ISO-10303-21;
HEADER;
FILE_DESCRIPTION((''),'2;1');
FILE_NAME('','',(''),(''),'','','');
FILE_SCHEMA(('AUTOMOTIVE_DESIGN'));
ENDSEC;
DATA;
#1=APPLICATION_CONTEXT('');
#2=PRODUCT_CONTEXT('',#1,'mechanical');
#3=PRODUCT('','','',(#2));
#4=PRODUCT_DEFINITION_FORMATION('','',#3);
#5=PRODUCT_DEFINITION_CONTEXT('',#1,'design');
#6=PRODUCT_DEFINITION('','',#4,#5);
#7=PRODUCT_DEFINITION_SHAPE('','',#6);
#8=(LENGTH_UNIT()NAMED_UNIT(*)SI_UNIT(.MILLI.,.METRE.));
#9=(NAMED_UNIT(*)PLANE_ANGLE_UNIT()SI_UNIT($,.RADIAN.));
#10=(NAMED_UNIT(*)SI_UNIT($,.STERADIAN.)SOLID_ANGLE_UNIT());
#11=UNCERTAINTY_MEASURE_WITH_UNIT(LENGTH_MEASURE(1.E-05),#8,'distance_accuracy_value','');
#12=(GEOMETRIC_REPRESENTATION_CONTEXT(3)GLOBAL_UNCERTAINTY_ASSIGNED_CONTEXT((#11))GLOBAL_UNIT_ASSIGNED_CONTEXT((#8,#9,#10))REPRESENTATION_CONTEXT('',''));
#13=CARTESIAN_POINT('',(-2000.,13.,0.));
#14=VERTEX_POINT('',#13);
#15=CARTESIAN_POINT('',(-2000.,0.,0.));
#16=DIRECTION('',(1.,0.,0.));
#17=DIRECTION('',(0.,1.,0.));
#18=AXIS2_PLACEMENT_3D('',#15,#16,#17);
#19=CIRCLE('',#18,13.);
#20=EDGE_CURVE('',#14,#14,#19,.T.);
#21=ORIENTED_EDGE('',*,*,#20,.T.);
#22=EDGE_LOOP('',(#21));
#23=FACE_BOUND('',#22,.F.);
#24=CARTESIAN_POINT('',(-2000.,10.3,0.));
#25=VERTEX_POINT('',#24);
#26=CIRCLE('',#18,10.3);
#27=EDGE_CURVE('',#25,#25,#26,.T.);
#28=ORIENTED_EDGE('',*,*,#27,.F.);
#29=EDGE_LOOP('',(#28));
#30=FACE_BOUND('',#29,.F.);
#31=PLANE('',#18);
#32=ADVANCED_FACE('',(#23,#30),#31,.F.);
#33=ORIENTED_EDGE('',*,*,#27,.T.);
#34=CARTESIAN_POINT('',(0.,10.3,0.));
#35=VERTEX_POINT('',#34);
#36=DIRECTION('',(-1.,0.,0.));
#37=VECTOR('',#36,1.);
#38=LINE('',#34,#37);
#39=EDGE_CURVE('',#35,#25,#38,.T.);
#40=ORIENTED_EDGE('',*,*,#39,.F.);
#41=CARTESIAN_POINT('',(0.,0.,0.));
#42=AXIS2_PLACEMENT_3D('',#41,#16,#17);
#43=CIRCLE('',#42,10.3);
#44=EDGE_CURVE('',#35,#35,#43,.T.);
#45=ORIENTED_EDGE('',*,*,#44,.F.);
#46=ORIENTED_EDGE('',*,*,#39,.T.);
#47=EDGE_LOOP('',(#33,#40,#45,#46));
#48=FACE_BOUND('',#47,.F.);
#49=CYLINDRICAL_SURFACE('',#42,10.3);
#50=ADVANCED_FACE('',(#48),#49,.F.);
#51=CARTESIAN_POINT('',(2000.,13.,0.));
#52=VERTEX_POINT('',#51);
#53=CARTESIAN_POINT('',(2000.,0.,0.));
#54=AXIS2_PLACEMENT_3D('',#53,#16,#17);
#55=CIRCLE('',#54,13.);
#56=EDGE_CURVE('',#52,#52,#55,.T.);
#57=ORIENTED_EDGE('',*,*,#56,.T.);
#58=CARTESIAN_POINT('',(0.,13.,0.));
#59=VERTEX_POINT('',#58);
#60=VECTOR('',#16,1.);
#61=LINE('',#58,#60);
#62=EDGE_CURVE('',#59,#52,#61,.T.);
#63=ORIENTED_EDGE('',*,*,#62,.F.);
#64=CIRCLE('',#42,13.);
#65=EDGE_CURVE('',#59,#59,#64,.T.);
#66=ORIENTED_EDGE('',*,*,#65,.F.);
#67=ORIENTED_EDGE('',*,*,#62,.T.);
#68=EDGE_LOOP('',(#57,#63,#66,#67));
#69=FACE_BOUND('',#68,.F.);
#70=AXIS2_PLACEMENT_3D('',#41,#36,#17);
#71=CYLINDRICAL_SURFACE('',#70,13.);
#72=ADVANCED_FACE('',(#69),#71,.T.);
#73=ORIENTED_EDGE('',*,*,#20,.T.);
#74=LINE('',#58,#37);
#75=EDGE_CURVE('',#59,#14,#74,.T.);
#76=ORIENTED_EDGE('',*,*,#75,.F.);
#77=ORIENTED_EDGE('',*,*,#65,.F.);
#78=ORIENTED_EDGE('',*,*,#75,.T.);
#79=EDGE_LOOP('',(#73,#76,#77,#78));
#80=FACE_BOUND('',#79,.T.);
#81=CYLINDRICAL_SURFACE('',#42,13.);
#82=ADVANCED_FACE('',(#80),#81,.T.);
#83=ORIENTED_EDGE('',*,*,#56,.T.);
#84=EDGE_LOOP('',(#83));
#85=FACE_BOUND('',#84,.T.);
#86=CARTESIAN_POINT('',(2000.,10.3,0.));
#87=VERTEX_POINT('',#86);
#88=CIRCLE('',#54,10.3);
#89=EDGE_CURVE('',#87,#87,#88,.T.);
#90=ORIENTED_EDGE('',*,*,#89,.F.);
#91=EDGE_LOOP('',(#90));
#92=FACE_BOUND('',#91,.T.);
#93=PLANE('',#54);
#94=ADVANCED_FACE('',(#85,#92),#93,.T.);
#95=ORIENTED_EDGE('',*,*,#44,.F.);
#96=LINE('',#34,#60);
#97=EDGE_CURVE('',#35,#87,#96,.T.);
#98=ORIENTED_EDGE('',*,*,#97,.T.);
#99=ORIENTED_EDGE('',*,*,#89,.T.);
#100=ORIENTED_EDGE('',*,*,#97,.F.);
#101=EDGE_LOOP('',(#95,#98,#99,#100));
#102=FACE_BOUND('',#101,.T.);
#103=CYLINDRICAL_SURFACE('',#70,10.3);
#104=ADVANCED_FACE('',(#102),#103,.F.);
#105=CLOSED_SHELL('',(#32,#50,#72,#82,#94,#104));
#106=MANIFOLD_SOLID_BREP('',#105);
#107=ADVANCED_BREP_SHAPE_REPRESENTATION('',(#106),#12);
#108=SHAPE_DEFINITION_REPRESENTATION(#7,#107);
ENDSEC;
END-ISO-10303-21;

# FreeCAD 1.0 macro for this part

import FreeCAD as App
import Part
import Sketcher

V = App.Vector
Q = App.Units.Quantity

doc = App.newDocument("Part")
body = doc.addObject("PartDesign::Body", "Body")

# Sketch on YZ plane
sketch1 = doc.addObject("Sketcher::SketchObject", "Sketch")
body.addObject(sketch1)
sketch1.AttachmentSupport = (doc.YZ_Plane, [""])
sketch1.MapMode = "FlatFace"
sketch1.addGeometry([
    Part.Circle(V(0, 0, 0), V(0, 0, 1), 13),
    Part.Circle(V(0, 0, 0), V(0, 0, 1), 10),
], False)
sketch1.addConstraint([
    Sketcher.Constraint("Coincident", 0, 3, -1, 1),
    Sketcher.Constraint("Coincident", 1, 3, -1, 1),
    Sketcher.Constraint("Diameter", 0, Q("26 mm")),
    Sketcher.Constraint("Diameter", 1, Q("20.6 mm")),
])
pad1 = doc.addObject("PartDesign::Pad", "Pad")
body.addObject(pad1)
pad1.Profile = sketch1
pad1.Length = 4000
pad1.Midplane = True

doc.recompute()
